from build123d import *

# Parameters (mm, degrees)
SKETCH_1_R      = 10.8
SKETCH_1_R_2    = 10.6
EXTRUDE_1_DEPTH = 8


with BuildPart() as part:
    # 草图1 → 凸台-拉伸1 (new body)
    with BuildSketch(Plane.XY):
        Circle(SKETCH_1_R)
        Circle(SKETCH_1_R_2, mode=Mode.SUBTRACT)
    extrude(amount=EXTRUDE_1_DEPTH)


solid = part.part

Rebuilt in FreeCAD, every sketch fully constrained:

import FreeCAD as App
import Part
import Sketcher
from FreeCAD import Vector

doc = App.newDocument("Part")
body = doc.addObject("PartDesign::Body", "Body")

sketch1 = body.newObject("Sketcher::SketchObject", "Sketch")
sketch1.AttachmentSupport = (doc.getObject("XY_Plane"), [""])
sketch1.MapMode = "FlatFace"
sketch1.addGeometry([
    Part.Circle(Vector(0, 0, 0), Vector(0, 0, 1), 11),
    Part.Circle(Vector(0, 0, 0), Vector(0, 0, 1), 11),
], False)
sketch1.addConstraint([
    Sketcher.Constraint("Coincident", 0, 3, -1, 1),
    Sketcher.Constraint("Coincident", 1, 3, -1, 1),
    Sketcher.Constraint("Diameter", 0, 21.6),
    Sketcher.Constraint("Diameter", 1, 21.2),
])
pad1 = body.newObject("PartDesign::Pad", "Pad")
pad1.Profile = sketch1
pad1.Length = 8

doc.recompute()
